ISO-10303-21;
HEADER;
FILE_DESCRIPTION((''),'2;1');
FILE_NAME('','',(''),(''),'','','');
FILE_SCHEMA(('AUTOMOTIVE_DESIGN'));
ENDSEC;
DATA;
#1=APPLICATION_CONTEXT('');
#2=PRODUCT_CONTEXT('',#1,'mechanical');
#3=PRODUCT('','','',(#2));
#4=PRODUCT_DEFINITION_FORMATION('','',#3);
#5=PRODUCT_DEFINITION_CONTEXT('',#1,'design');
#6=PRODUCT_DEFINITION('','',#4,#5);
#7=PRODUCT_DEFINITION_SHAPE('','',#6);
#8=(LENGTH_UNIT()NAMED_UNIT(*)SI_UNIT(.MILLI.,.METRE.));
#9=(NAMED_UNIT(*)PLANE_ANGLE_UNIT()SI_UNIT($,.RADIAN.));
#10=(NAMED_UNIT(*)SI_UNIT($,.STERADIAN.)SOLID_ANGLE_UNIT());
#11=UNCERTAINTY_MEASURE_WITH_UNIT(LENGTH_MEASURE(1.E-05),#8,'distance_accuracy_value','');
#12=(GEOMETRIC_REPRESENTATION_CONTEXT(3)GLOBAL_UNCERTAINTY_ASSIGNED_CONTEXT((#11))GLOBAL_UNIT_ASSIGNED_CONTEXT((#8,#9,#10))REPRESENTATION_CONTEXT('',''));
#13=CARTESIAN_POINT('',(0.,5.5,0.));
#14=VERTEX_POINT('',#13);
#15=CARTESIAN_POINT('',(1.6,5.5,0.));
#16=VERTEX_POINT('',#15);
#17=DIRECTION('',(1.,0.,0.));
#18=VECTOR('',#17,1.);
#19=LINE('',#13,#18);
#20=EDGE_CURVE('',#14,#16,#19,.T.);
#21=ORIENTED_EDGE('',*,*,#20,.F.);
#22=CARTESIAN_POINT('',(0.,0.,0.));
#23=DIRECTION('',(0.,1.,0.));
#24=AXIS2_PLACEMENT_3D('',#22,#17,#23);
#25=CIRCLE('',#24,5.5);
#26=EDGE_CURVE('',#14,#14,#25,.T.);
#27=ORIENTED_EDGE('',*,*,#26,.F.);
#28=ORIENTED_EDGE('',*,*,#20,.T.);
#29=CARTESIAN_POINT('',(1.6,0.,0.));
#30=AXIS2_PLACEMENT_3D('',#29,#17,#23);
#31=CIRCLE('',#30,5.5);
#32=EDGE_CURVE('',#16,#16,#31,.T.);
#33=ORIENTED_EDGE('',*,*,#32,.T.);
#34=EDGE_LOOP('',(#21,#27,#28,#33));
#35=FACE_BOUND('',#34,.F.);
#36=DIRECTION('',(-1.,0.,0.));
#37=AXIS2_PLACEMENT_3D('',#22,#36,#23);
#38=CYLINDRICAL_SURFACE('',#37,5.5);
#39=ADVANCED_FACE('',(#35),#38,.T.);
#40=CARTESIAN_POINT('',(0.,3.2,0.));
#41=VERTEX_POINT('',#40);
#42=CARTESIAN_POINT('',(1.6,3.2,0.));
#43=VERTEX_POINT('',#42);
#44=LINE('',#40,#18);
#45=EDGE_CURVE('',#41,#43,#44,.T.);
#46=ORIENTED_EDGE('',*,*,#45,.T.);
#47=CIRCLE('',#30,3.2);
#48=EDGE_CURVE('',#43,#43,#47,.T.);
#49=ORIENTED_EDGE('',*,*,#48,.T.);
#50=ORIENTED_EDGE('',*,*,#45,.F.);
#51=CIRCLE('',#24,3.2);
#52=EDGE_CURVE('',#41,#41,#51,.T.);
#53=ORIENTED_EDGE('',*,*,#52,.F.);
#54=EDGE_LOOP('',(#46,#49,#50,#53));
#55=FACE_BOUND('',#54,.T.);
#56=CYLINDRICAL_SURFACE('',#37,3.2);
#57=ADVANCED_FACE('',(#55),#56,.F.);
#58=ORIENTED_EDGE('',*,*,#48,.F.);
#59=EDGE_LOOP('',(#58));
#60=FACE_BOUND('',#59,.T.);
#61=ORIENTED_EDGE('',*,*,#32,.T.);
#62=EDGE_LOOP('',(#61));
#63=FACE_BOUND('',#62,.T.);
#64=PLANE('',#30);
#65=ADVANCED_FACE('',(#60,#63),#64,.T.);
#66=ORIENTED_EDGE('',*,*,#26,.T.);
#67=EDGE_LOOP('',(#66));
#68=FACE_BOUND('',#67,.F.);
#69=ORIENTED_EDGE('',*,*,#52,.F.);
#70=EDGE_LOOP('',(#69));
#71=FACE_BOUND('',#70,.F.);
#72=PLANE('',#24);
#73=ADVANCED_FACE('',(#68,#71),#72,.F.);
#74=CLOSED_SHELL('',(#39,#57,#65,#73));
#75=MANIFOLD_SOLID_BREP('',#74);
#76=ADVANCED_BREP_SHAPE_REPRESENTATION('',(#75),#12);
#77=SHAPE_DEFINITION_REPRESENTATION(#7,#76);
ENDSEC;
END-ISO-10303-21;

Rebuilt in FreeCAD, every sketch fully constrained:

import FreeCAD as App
import Part
import Sketcher
from FreeCAD import Vector

doc = App.newDocument("Part")
params = doc.addObject("Spreadsheet::Sheet", "Params")
for row, (alias, value) in enumerate([
    ("sketch1_diameter", "11 mm"),
    ("sketch1_diameter2", "6.4 mm"),
    ("pad1_length", "1.6 mm"),
], start=1):
    params.set(f"A{row}", alias)
    params.set(f"B{row}", "=" + value)
    params.setAlias(f"B{row}", alias)

body = doc.addObject("PartDesign::Body", "Body")

# Sketch on YZ plane
sketch1 = body.newObject("Sketcher::SketchObject", "Sketch")
sketch1.AttachmentSupport = (doc.getObject("YZ_Plane"), [""])
sketch1.MapMode = "FlatFace"
sketch1.addGeometry([
    Part.Circle(Vector(0, 0, 0), Vector(0, 0, 1), 5.5),
    Part.Circle(Vector(0, 0, 0), Vector(0, 0, 1), 3.2),
], False)
sketch1.addConstraint([
    Sketcher.Constraint("Coincident", 0, 3, -1, 1),
    Sketcher.Constraint("Coincident", 1, 3, -1, 1),
    Sketcher.Constraint("Diameter", 0, 11.0),
    Sketcher.Constraint("Diameter", 1, 6.4),
])
sketch1.setExpression("Constraints[2]", "Params.sketch1_diameter")
sketch1.setExpression("Constraints[3]", "Params.sketch1_diameter2")
pad1 = body.newObject("PartDesign::Pad", "Pad")
pad1.Profile = sketch1
pad1.setExpression("Length", "Params.pad1_length")

doc.recompute()
